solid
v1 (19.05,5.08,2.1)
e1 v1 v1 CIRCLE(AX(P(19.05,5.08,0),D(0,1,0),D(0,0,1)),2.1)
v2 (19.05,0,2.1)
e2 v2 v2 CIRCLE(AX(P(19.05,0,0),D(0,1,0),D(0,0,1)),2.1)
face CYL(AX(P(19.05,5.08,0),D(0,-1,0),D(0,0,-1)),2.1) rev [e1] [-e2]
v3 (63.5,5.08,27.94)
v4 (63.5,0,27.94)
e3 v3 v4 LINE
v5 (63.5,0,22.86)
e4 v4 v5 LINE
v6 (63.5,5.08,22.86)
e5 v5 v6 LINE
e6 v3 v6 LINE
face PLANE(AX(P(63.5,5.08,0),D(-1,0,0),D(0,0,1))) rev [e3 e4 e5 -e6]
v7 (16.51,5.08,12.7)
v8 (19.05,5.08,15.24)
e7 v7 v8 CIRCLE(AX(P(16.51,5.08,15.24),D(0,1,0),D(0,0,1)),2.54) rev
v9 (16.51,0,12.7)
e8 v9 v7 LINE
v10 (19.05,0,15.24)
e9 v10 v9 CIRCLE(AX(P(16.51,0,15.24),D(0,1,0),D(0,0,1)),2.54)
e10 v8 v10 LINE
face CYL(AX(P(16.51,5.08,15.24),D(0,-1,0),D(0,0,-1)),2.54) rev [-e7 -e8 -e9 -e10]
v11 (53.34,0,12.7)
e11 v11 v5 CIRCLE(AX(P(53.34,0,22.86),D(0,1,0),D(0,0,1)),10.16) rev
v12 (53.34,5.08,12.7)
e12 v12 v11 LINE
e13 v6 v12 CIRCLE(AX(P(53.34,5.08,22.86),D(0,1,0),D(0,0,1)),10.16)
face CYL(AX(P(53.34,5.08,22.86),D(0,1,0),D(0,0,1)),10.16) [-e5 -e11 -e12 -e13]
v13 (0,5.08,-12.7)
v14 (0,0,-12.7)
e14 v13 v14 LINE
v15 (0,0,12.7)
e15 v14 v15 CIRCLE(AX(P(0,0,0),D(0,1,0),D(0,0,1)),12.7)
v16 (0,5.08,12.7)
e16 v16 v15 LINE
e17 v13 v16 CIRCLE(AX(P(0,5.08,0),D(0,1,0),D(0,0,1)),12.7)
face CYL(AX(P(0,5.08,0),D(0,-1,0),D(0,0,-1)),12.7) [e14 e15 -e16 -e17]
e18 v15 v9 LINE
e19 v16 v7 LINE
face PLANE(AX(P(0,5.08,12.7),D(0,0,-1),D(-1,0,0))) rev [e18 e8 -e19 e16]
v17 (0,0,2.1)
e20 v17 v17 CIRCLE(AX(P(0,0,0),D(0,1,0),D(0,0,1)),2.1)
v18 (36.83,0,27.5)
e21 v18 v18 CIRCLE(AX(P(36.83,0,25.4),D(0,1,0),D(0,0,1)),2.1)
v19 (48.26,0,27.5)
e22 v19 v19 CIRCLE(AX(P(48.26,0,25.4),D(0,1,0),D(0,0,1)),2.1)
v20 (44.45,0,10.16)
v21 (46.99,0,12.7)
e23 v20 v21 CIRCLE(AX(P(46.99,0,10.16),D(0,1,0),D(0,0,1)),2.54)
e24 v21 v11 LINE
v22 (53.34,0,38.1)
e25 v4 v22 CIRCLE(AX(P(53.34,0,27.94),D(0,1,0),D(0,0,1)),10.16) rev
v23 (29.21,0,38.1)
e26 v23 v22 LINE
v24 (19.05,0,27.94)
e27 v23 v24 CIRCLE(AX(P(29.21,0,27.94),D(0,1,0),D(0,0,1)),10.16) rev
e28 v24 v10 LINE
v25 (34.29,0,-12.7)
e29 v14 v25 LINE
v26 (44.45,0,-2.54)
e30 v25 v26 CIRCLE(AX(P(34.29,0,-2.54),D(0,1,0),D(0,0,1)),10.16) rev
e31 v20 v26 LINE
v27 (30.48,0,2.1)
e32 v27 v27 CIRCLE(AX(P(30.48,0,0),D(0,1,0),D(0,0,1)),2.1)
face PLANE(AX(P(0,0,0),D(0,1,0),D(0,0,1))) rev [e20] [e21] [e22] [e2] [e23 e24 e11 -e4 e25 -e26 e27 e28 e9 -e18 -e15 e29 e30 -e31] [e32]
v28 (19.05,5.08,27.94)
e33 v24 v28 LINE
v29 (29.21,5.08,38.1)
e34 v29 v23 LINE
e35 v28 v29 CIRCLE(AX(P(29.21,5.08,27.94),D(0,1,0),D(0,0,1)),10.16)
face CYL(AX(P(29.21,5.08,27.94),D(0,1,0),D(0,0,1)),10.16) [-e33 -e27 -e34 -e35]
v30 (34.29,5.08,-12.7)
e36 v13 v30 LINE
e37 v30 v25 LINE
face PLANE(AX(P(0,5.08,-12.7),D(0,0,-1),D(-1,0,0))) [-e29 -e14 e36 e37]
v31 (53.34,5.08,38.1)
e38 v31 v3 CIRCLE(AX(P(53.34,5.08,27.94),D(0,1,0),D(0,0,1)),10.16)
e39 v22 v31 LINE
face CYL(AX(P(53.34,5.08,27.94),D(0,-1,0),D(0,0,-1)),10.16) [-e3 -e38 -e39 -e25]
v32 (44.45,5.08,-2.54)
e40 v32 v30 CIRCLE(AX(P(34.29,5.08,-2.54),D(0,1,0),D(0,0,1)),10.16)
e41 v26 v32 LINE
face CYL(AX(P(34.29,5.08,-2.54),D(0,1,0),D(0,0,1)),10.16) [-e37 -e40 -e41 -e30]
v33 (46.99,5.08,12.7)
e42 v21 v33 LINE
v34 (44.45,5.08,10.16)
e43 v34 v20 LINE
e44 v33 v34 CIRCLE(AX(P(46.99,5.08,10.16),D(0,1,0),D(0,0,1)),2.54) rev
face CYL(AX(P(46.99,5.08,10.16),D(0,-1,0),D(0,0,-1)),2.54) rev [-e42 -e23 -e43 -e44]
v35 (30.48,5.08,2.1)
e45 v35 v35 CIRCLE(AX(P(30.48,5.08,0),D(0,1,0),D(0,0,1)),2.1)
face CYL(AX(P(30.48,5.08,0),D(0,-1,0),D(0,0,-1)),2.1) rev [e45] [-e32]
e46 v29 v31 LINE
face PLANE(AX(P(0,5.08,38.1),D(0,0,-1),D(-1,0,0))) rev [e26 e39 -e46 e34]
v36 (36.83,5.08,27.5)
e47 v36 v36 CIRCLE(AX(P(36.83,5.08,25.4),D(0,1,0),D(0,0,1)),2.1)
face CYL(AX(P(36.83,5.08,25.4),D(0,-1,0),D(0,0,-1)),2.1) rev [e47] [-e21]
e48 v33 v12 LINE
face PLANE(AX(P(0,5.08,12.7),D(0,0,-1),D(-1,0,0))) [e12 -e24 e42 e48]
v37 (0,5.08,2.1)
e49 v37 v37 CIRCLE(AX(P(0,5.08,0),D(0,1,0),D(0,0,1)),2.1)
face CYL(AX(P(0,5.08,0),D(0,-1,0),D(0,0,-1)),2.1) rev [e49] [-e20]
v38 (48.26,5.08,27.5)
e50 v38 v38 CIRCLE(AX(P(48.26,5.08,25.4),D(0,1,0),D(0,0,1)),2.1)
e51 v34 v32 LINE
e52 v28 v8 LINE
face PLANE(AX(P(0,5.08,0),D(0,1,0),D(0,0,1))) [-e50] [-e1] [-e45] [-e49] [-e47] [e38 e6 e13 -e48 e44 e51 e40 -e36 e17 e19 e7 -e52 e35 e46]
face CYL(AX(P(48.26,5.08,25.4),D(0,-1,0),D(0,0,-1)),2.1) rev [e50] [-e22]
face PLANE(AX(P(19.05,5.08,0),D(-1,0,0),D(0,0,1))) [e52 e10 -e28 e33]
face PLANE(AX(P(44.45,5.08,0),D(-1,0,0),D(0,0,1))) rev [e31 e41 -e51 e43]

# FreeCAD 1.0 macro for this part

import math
import FreeCAD as App
import Part
import Sketcher
Q = App.Units.Quantity


def edges_at(feature, points):
    """Names of the edges that pass closest to the given points."""
    edges = feature.Shape.Edges
    near = lambda p: min(range(len(edges)), key=lambda i: edges[i].distToShape(Part.Vertex(*p))[0])
    return sorted({f"Edge{near(p) + 1}" for p in points})

doc = App.newDocument("Part")
body = doc.addObject("PartDesign::Body", "Body")

sketch1 = body.newObject("Sketcher::SketchObject", "Sketch")
sketch1.AttachmentSupport = (doc.getObject("XZ_Plane"), [""])
sketch1.MapMode = "FlatFace"
sketch1.addGeometry(Part.ArcOfCircle(Part.Circle(App.Vector(0, 0, 0), App.Vector(0, 0, 1), 12.7), math.radians(90), math.radians(270)), False)
sketch1.addGeometry(Part.LineSegment(App.Vector(0, 12.7, 0), App.Vector(19.05, 12.7, 0)), False)
sketch1.addGeometry(Part.LineSegment(App.Vector(19.05, 12.7, 0), App.Vector(19.05, 38.1, 0)), False)
sketch1.addGeometry(Part.LineSegment(App.Vector(19.05, 38.1, 0), App.Vector(63.5, 38.1, 0)), False)
sketch1.addGeometry(Part.LineSegment(App.Vector(63.5, 38.1, 0), App.Vector(63.5, 12.7, 0)), False)
sketch1.addGeometry(Part.LineSegment(App.Vector(63.5, 12.7, 0), App.Vector(44.45, 12.7, 0)), False)
sketch1.addGeometry(Part.LineSegment(App.Vector(44.45, 12.7, 0), App.Vector(44.45, -12.7, 0)), False)
sketch1.addGeometry(Part.LineSegment(App.Vector(44.45, -12.7, 0), App.Vector(0, -12.7, 0)), False)
sketch1.addGeometry(Part.Circle(App.Vector(36.83, 25.4, 0), App.Vector(0, 0, 1), 2.1), False)
sketch1.addGeometry(Part.Circle(App.Vector(48.26, 25.4, 0), App.Vector(0, 0, 1), 2.1), False)
sketch1.addGeometry(Part.Circle(App.Vector(0, 0, 0), App.Vector(0, 0, 1), 2.1), False)
sketch1.addGeometry(Part.Circle(App.Vector(19.05, 0, 0), App.Vector(0, 0, 1), 2.1), False)
sketch1.addGeometry(Part.Circle(App.Vector(30.48, 0, 0), App.Vector(0, 0, 1), 2.1), False)
sketch1.addConstraint(Sketcher.Constraint("Tangent", 0, 1, 1, 1))
sketch1.addConstraint(Sketcher.Constraint("Coincident", 1, 2, 2, 1))
sketch1.addConstraint(Sketcher.Constraint("Coincident", 2, 2, 3, 1))
sketch1.addConstraint(Sketcher.Constraint("Coincident", 3, 2, 4, 1))
sketch1.addConstraint(Sketcher.Constraint("Coincident", 4, 2, 5, 1))
sketch1.addConstraint(Sketcher.Constraint("Coincident", 5, 2, 6, 1))
sketch1.addConstraint(Sketcher.Constraint("Coincident", 6, 2, 7, 1))
sketch1.addConstraint(Sketcher.Constraint("Tangent", 7, 2, 0, 2))
sketch1.addConstraint(Sketcher.Constraint("Horizontal", 1))
sketch1.addConstraint(Sketcher.Constraint("Vertical", 2))
sketch1.addConstraint(Sketcher.Constraint("Horizontal", 3))
sketch1.addConstraint(Sketcher.Constraint("Vertical", 4))
sketch1.addConstraint(Sketcher.Constraint("Horizontal", 5))
sketch1.addConstraint(Sketcher.Constraint("Vertical", 6))
sketch1.addConstraint(Sketcher.Constraint("Horizontal", 7))
sketch1.addConstraint(Sketcher.Constraint("Coincident", 0, 3, -1, 1))
sketch1.addConstraint(Sketcher.Constraint("Coincident", 10, 3, -1, 1))
sketch1.addConstraint(Sketcher.Constraint("Equal", 8, 9))
sketch1.addConstraint(Sketcher.Constraint("Equal", 9, 10))
sketch1.addConstraint(Sketcher.Constraint("Equal", 10, 11))
sketch1.addConstraint(Sketcher.Constraint("Equal", 11, 12))
sketch1.addConstraint(Sketcher.Constraint("PointOnObject", 11, 3, -1))
sketch1.addConstraint(Sketcher.Constraint("PointOnObject", 12, 3, -1))
sketch1.addConstraint(Sketcher.Constraint("Horizontal", 8, 3, 9, 3))
sketch1.addConstraint(Sketcher.Constraint("Horizontal", 1, 2, 4, 2))
sketch1.addConstraint(Sketcher.Constraint("Vertical", 11, 3, 1, 2))
sketch1.addConstraint(Sketcher.Constraint("Equal", 1, 5))
sketch1.addConstraint(Sketcher.Constraint("Equal", 4, 6))
sketch1.addConstraint(Sketcher.Constraint("Radius", 0, Q("0.5 in")))
sketch1.addConstraint(Sketcher.Constraint("DistanceY", -1, 1, 8, 3, Q("1 in")))
sketch1.addConstraint(Sketcher.Constraint("DistanceX", 1, 2, 5, 2, Q("1 in")))
sketch1.addConstraint(Sketcher.Constraint("DistanceX", 1, 1, 1, 2, Q("0.75 in")))
sketch1.addConstraint(Sketcher.Constraint("DistanceX", -1, 1, 9, 3, Q("1.9 in")))
sketch1.addConstraint(Sketcher.Constraint("DistanceX", -1, 1, 12, 3, Q("1.2 in")))
sketch1.addConstraint(Sketcher.Constraint("DistanceX", 11, 3, 8, 3, Q("0.7 in")))
sketch1.addConstraint(Sketcher.Constraint("Diameter", 8, Q("4.2 mm")))
pad1 = body.newObject("PartDesign::Pad", "Pad")
pad1.Profile = sketch1
pad1.Length = Q("0.2 in")
pad1.Reversed = True
doc.recompute()

fillet = body.newObject("PartDesign::Fillet", "Fillet")
fillet.Base = (pad1, edges_at(pad1, [(44.45, 2.54, 12.7), (19.05, 2.54, 12.7)]))
fillet.Radius = Q("0.1 in")
doc.recompute()

fillet2 = body.newObject("PartDesign::Fillet", "Fillet001")
fillet2.Base = (fillet, edges_at(fillet, [
    (44.45, 2.54, -12.7),
    (63.5, 2.54, 12.7),
    (63.5, 2.54, 38.1),
    (19.05, 2.54, 38.1),
]))
fillet2.Radius = Q("0.4 in")

doc.recompute()
